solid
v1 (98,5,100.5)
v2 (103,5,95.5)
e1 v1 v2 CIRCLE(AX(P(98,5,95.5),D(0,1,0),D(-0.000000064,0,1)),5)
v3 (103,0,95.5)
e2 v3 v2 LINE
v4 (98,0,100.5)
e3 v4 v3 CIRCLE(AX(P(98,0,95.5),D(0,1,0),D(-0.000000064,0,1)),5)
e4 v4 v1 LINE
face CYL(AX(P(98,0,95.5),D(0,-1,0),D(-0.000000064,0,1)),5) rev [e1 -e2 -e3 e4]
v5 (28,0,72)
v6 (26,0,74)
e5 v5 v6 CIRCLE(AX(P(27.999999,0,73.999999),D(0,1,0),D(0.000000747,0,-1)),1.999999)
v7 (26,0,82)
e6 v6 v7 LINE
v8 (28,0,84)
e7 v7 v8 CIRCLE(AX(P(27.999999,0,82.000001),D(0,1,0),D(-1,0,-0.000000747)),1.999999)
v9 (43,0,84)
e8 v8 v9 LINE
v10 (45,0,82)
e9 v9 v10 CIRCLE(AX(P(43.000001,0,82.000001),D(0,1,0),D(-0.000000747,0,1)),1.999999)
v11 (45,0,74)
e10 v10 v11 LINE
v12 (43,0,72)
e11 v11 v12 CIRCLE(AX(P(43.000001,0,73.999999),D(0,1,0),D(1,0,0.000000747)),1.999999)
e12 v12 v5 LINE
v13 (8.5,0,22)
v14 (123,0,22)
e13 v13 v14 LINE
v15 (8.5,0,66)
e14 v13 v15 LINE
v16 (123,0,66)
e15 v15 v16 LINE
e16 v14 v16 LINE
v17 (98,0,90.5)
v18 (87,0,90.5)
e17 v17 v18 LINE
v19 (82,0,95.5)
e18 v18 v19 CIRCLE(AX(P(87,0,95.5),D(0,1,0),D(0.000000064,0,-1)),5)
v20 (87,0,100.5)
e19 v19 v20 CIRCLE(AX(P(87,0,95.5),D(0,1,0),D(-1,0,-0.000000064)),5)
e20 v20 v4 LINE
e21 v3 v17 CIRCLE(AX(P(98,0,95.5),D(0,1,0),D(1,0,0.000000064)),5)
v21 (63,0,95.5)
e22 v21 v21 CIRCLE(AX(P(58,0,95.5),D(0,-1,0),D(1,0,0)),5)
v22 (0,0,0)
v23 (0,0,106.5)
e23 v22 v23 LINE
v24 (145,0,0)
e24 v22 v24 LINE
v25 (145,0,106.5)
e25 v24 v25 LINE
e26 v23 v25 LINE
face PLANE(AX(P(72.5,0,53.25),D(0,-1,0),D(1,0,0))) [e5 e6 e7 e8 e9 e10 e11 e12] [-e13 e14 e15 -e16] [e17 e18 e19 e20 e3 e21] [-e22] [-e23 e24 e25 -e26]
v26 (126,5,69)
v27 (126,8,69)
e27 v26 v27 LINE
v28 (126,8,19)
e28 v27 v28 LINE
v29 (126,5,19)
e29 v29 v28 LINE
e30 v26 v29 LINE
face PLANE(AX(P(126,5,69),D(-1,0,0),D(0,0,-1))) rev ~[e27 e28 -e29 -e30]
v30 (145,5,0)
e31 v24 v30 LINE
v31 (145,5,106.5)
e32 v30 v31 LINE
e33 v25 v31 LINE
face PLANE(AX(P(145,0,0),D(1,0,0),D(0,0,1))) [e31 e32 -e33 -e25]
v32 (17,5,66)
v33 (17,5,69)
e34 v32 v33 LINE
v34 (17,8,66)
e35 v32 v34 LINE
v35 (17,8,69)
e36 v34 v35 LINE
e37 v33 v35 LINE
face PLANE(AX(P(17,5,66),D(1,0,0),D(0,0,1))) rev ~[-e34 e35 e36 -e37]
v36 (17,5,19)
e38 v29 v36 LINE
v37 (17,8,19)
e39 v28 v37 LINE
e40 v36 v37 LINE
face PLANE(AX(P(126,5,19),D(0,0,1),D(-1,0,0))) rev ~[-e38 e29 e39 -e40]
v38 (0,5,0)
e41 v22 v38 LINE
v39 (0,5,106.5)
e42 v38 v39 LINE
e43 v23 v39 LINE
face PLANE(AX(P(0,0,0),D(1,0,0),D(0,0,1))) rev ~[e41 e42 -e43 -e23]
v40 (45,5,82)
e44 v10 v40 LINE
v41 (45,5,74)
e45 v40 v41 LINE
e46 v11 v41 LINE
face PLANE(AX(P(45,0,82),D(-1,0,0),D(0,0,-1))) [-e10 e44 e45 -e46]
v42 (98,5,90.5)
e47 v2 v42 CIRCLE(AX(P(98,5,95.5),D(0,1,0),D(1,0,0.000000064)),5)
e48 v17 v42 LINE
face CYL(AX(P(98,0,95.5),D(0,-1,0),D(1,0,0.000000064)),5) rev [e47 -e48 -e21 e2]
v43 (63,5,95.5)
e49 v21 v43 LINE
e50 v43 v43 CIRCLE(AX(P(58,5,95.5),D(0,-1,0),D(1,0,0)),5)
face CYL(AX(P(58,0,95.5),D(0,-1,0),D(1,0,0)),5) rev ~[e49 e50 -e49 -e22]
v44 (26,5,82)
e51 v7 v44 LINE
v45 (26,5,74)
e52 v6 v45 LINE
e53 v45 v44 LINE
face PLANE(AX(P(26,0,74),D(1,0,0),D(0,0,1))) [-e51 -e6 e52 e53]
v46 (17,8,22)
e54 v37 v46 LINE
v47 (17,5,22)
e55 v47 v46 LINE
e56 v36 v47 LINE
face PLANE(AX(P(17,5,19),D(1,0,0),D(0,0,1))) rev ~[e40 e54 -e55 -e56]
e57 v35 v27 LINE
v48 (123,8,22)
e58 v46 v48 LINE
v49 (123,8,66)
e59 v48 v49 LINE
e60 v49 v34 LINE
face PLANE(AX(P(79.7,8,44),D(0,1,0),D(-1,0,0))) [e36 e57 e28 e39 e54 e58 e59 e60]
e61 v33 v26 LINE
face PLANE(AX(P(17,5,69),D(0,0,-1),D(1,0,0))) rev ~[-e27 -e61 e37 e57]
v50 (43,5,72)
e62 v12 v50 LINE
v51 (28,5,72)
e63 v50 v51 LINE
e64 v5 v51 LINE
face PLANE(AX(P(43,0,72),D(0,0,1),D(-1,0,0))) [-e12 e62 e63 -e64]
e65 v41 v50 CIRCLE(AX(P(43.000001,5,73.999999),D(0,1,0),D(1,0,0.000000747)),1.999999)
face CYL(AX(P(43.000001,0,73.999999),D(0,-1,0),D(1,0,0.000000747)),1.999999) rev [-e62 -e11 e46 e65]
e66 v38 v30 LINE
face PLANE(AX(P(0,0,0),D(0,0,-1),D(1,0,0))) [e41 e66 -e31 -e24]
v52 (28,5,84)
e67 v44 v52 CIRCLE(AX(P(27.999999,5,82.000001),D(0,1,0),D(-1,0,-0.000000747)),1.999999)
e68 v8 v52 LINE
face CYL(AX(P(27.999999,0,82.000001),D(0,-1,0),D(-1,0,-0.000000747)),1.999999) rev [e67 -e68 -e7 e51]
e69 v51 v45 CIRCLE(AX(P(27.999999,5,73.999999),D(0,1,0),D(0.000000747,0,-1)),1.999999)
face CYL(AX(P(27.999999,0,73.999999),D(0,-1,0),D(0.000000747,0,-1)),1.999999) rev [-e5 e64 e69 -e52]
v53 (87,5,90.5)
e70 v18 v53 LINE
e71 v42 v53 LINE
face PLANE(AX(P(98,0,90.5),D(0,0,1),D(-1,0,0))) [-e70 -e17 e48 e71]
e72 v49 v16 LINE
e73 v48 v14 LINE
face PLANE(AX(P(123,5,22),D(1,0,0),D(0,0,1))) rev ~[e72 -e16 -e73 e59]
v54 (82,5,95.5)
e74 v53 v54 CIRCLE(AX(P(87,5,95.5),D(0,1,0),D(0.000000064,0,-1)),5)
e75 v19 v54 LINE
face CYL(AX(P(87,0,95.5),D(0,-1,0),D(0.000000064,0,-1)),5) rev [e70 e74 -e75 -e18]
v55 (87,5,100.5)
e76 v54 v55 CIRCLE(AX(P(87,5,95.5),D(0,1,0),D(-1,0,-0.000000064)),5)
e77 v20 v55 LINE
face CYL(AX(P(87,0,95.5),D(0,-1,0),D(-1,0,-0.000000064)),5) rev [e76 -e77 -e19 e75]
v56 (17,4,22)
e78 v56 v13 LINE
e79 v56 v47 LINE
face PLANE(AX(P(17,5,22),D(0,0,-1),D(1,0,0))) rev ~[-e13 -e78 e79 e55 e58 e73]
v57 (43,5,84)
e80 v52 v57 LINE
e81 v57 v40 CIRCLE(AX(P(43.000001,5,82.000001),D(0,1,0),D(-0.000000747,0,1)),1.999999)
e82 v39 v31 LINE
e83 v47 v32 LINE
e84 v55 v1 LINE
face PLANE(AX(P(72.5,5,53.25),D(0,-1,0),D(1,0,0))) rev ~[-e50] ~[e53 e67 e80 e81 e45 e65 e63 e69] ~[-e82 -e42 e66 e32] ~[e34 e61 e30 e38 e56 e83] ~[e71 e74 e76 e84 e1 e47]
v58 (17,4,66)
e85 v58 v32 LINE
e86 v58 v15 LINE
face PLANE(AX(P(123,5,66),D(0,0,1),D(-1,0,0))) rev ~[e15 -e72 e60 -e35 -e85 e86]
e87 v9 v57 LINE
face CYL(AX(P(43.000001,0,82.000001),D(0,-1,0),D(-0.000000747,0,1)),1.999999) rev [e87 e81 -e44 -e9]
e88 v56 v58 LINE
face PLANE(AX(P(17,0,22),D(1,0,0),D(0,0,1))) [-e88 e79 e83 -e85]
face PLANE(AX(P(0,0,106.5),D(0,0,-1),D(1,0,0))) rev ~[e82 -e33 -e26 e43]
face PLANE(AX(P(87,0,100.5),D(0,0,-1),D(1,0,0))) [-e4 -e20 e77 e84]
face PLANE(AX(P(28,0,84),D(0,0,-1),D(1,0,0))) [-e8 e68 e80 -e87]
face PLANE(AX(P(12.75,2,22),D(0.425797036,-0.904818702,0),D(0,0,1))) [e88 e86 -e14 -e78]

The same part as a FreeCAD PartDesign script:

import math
import FreeCAD as App
import Part
import Sketcher
from FreeCAD import Vector


def edges_at(feature, points):
    """Names of the edges that pass closest to the given points."""
    edges = feature.Shape.Edges
    near = lambda p: min(range(len(edges)), key=lambda i: edges[i].distToShape(Part.Vertex(*p))[0])
    return sorted({f"Edge{near(p) + 1}" for p in points})

doc = App.newDocument("Part")
params = doc.addObject("Spreadsheet::Sheet", "Params")
for row, (alias, value) in enumerate([
    ("sketch1_diameter", "10 mm"),
    ("sketch1_radius", "1.999999 mm"),
    ("sketch1_width", "145 mm"),
    ("sketch1_width2", "106 mm"),
    ("sketch1_width3", "15 mm"),
    ("pad1_length", "5 mm"),
    ("chamfer_size", "4 mm"),
    ("chamfer_size2", "8.5 mm"),
    ("sketch2_width", "106 mm"),
    ("sketch2_width2", "109 mm"),
    ("sketch2_height", "3 mm"),
    ("sketch2_height2", "50 mm"),
    ("pad2_length", "3 mm"),
], start=1):
    params.set(f"A{row}", alias)
    params.set(f"B{row}", "=" + value)
    params.setAlias(f"B{row}", alias)

body = doc.addObject("PartDesign::Body", "Body")

# Sketch on XZ plane
sketch1 = body.newObject("Sketcher::SketchObject", "Sketch")
sketch1.AttachmentSupport = (doc.getObject("XZ_Plane"), [""])
sketch1.MapMode = "FlatFace"
sketch1.addGeometry([
    Part.LineSegment(Vector(0, 106.5, 0), Vector(0, 0, 0)),  # 0
    Part.LineSegment(Vector(0, 0, 0), Vector(145, 0, 0)),  # 1
    Part.LineSegment(Vector(145, 0, 0), Vector(145, 106.5, 0)),  # 2
    Part.LineSegment(Vector(145, 106.5, 0), Vector(0, 106.5, 0)),  # 3
    Part.LineSegment(Vector(123, 22, 0), Vector(17, 22, 0)),  # 4
    Part.LineSegment(Vector(17, 22, 0), Vector(17, 66, 0)),  # 5
    Part.LineSegment(Vector(17, 66, 0), Vector(123, 66, 0)),  # 6
    Part.LineSegment(Vector(123, 66, 0), Vector(123, 22, 0)),  # 7
    Part.LineSegment(Vector(26, 74, 0), Vector(26, 82, 0)),  # 8
    Part.ArcOfCircle(Part.Circle(Vector(27.999999, 82.000001, 0), Vector(0, 0, 1), 1.999999), math.radians(89.999957), math.radians(180.000043)),  # 9
    Part.LineSegment(Vector(28, 84, 0), Vector(43, 84, 0)),  # 10
    Part.ArcOfCircle(Part.Circle(Vector(43.000001, 82.000001, 0), Vector(0, 0, 1), 1.999999), math.radians(-0.000043), math.radians(90.000043)),  # 11
    Part.LineSegment(Vector(45, 82, 0), Vector(45, 74, 0)),  # 12
    Part.ArcOfCircle(Part.Circle(Vector(43.000001, 73.999999, 0), Vector(0, 0, 1), 1.999999), math.radians(-90.000043), math.radians(0.000043)),  # 13
    Part.LineSegment(Vector(43, 72, 0), Vector(28, 72, 0)),  # 14
    Part.ArcOfCircle(Part.Circle(Vector(27.999999, 73.999999, 0), Vector(0, 0, 1), 1.999999), math.radians(179.999957), math.radians(270.000043)),  # 15
    Part.Circle(Vector(58, 95.5, 0), Vector(0, 0, 1), 5),  # 16
    Part.ArcOfCircle(Part.Circle(Vector(87, 95.5, 0), Vector(0, 0, 1), 5), math.radians(89.999996), math.radians(180.000004)),  # 17
    Part.LineSegment(Vector(87, 100.5, 0), Vector(98, 100.5, 0)),  # 18
    Part.ArcOfCircle(Part.Circle(Vector(98, 95.5, 0), Vector(0, 0, 1), 5), math.radians(-0.000004), math.radians(90.000004)),  # 19
    Part.ArcOfCircle(Part.Circle(Vector(98, 95.5, 0), Vector(0, 0, 1), 5), math.radians(-90.000004), math.radians(0.000004)),  # 20
    Part.LineSegment(Vector(98, 90.5, 0), Vector(87, 90.5, 0)),  # 21
    Part.ArcOfCircle(Part.Circle(Vector(87, 95.5, 0), Vector(0, 0, 1), 5), math.radians(179.999996), math.radians(270.000004)),  # 22
], False)
sketch1.addConstraint([
    Sketcher.Constraint("Coincident", 0, 2, 1, 1),
    Sketcher.Constraint("Coincident", 1, 2, 2, 1),
    Sketcher.Constraint("Coincident", 2, 2, 3, 1),
    Sketcher.Constraint("Coincident", 3, 2, 0, 1),
    Sketcher.Constraint("Coincident", 4, 2, 5, 1),
    Sketcher.Constraint("Coincident", 5, 2, 6, 1),
    Sketcher.Constraint("Coincident", 6, 2, 7, 1),
    Sketcher.Constraint("Coincident", 7, 2, 4, 1),
    Sketcher.Constraint("Tangent", 8, 2, 9, 2),
    Sketcher.Constraint("Tangent", 9, 1, 10, 1),
    Sketcher.Constraint("Tangent", 10, 2, 11, 2),
    Sketcher.Constraint("Tangent", 11, 1, 12, 1),
    Sketcher.Constraint("Tangent", 12, 2, 13, 2),
    Sketcher.Constraint("Tangent", 13, 1, 14, 1),
    Sketcher.Constraint("Tangent", 14, 2, 15, 2),
    Sketcher.Constraint("Tangent", 15, 1, 8, 1),
    Sketcher.Constraint("Tangent", 17, 1, 18, 1),
    Sketcher.Constraint("Tangent", 18, 2, 19, 2),
    Sketcher.Constraint("Tangent", 19, 1, 20, 2),
    Sketcher.Constraint("Tangent", 20, 1, 21, 1),
    Sketcher.Constraint("Tangent", 21, 2, 22, 2),
    Sketcher.Constraint("Tangent", 22, 1, 17, 2),
    Sketcher.Constraint("Vertical", 0),
    Sketcher.Constraint("Horizontal", 1),
    Sketcher.Constraint("Vertical", 2),
    Sketcher.Constraint("Horizontal", 3),
    Sketcher.Constraint("Horizontal", 4),
    Sketcher.Constraint("Vertical", 5),
    Sketcher.Constraint("Horizontal", 6),
    Sketcher.Constraint("Vertical", 7),
    Sketcher.Constraint("Vertical", 8),
    Sketcher.Constraint("Horizontal", 10),
    Sketcher.Constraint("Vertical", 12),
    Sketcher.Constraint("Horizontal", 14),
    Sketcher.Constraint("Horizontal", 18),
    Sketcher.Constraint("Horizontal", 21),
    Sketcher.Constraint("Coincident", 0, 2, -1, 1),
    Sketcher.Constraint("Equal", 9, 11),
    Sketcher.Constraint("Equal", 11, 13),
    Sketcher.Constraint("Equal", 13, 15),
    Sketcher.Constraint("Equal", 16, 17),
    Sketcher.Constraint("Equal", 17, 19),
    Sketcher.Constraint("Equal", 19, 20),
    Sketcher.Constraint("Horizontal", 16, 3, 17, 3),
    Sketcher.Constraint("Horizontal", 22, 3, 19, 1),
    Sketcher.Constraint("Horizontal", 19, 1, 22, 1),
    Sketcher.Constraint("Diameter", 16, 10.0),
    Sketcher.Constraint("Radius", 9, 1.999999),
    Sketcher.Constraint("DistanceX", 1, 1, 1, 2, 145.0),
    Sketcher.Constraint("DistanceX", 4, 2, 4, 1, 106.0),
    Sketcher.Constraint("DistanceX", 10, 1, 10, 2, 15.0),
    Sketcher.Constraint("DistanceX", 18, 1, 18, 2, 11.0),
    Sketcher.Constraint("DistanceY", 5, 1, 5, 2, 44.0),
    Sketcher.Constraint("DistanceY", 8, 1, 8, 2, 8.0),
    Sketcher.Constraint("DistanceY", 0, 2, 0, 1, 106.5),
    Sketcher.Constraint("DistanceX", -1, 1, 9, 3, 27.999999),
    Sketcher.Constraint("DistanceY", -1, 1, 9, 3, 82.000001),
    Sketcher.Constraint("DistanceX", -1, 1, 16, 3, 58.0),
    Sketcher.Constraint("DistanceX", -1, 1, 17, 3, 87.0),
    Sketcher.Constraint("DistanceX", -1, 1, 4, 2, 17.0),
    Sketcher.Constraint("DistanceY", -1, 1, 4, 2, 22.0),
    Sketcher.Constraint("DistanceY", 19, 3, 2, 2, 11.0),
])
sketch1.setExpression("Constraints[46]", "Params.sketch1_diameter")
sketch1.setExpression("Constraints[47]", "Params.sketch1_radius")
sketch1.setExpression("Constraints[48]", "Params.sketch1_width")
sketch1.setExpression("Constraints[49]", "Params.sketch1_width2")
sketch1.setExpression("Constraints[50]", "Params.sketch1_width3")
pad1 = body.newObject("PartDesign::Pad", "Pad")
pad1.Profile = sketch1
pad1.setExpression("Length", "Params.pad1_length")
pad1.Reversed = True
doc.recompute()

chamfer = body.newObject("PartDesign::Chamfer", "Chamfer")
chamfer.Base = (pad1, edges_at(pad1, [(17, 0, 44)]))
chamfer.ChamferType = "Two distances"
chamfer.setExpression("Size", "Params.chamfer_size")
chamfer.setExpression("Size2", "Params.chamfer_size2")
chamfer.FlipDirection = True

# Sketch on XZ plane
sketch2 = body.newObject("Sketcher::SketchObject", "Sketch001")
sketch2.AttachmentSupport = (doc.getObject("XZ_Plane"), [""])
sketch2.MapMode = "FlatFace"
sketch2.AttachmentOffset = App.Placement(Vector(0, 0, -5), App.Rotation())
sketch2.addGeometry([
    Part.LineSegment(Vector(123, 66, 0), Vector(17, 66, 0)),  # 0
    Part.LineSegment(Vector(17, 66, 0), Vector(17, 69, 0)),  # 1
    Part.LineSegment(Vector(17, 69, 0), Vector(126, 69, 0)),  # 2
    Part.LineSegment(Vector(126, 69, 0), Vector(126, 19, 0)),  # 3
    Part.LineSegment(Vector(126, 19, 0), Vector(17, 19, 0)),  # 4
    Part.LineSegment(Vector(17, 19, 0), Vector(17, 22, 0)),  # 5
    Part.LineSegment(Vector(17, 22, 0), Vector(123, 22, 0)),  # 6
    Part.LineSegment(Vector(123, 22, 0), Vector(123, 66, 0)),  # 7
], False)
sketch2.addConstraint([
    Sketcher.Constraint("Coincident", 0, 2, 1, 1),
    Sketcher.Constraint("Coincident", 1, 2, 2, 1),
    Sketcher.Constraint("Coincident", 2, 2, 3, 1),
    Sketcher.Constraint("Coincident", 3, 2, 4, 1),
    Sketcher.Constraint("Coincident", 4, 2, 5, 1),
    Sketcher.Constraint("Coincident", 5, 2, 6, 1),
    Sketcher.Constraint("Coincident", 6, 2, 7, 1),
    Sketcher.Constraint("Coincident", 7, 2, 0, 1),
    Sketcher.Constraint("Horizontal", 0),
    Sketcher.Constraint("Vertical", 1),
    Sketcher.Constraint("Horizontal", 2),
    Sketcher.Constraint("Vertical", 3),
    Sketcher.Constraint("Horizontal", 4),
    Sketcher.Constraint("Vertical", 5),
    Sketcher.Constraint("Horizontal", 6),
    Sketcher.Constraint("Vertical", 7),
    Sketcher.Constraint("Vertical", 1, 2, 4, 2),
    Sketcher.Constraint("Equal", 1, 5),
    Sketcher.Constraint("DistanceX", 0, 2, 0, 1, 106.0),
    Sketcher.Constraint("DistanceX", 2, 1, 2, 2, 109.0),
    Sketcher.Constraint("DistanceY", 1, 1, 1, 2, 3.0),
    Sketcher.Constraint("DistanceY", 3, 2, 3, 1, 50.0),
    Sketcher.Constraint("DistanceX", -1, 1, 0, 2, 17.0),
    Sketcher.Constraint("DistanceY", -1, 1, 0, 2, 66.0),
])
sketch2.setExpression("Constraints[18]", "Params.sketch2_width")
sketch2.setExpression("Constraints[19]", "Params.sketch2_width2")
sketch2.setExpression("Constraints[20]", "Params.sketch2_height")
sketch2.setExpression("Constraints[21]", "Params.sketch2_height2")
pad2 = body.newObject("PartDesign::Pad", "Pad001")
pad2.Profile = sketch2
pad2.setExpression("Length", "Params.pad2_length")
pad2.Reversed = True

doc.recompute()
